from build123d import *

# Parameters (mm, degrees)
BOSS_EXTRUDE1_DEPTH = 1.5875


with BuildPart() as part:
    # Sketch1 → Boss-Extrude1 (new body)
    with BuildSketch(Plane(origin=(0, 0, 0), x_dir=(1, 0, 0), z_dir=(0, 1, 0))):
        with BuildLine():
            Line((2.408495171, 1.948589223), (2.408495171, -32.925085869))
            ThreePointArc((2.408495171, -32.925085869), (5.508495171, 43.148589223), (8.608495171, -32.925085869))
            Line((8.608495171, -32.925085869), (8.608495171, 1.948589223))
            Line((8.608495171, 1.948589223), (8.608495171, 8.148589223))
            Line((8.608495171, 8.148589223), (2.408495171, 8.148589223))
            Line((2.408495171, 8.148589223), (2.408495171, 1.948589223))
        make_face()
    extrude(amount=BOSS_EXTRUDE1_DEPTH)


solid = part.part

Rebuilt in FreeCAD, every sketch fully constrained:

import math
import FreeCAD as App
import Part
import Sketcher
Q = App.Units.Quantity

doc = App.newDocument("Part")
body = doc.addObject("PartDesign::Body", "Body")

sketch1 = body.newObject("Sketcher::SketchObject", "Sketch")
sketch1.AttachmentSupport = (doc.getObject("XZ_Plane"), [""])
sketch1.MapMode = "FlatFace"
sketch1.addGeometry([
    Part.ArcOfCircle(Part.Circle(App.Vector(5.508495, -5.048589, 0), App.Vector(0, 0, 1), 38.1), math.radians(94.66702), math.radians(445.33298)),
    Part.LineSegment(App.Vector(2.408495, 32.925086, 0), App.Vector(2.408495, -8.148589, 0)),
    Part.LineSegment(App.Vector(2.408495, -8.148589, 0), App.Vector(8.608495, -8.148589, 0)),
    Part.LineSegment(App.Vector(8.608495, -8.148589, 0), App.Vector(8.608495, 32.925086, 0)),
], False)
sketch1.addConstraint([
    Sketcher.Constraint("Coincident", 0, 1, 1, 1),
    Sketcher.Constraint("Coincident", 1, 2, 2, 1),
    Sketcher.Constraint("Coincident", 2, 2, 3, 1),
    Sketcher.Constraint("Coincident", 3, 2, 0, 2),
    Sketcher.Constraint("Vertical", 1),
    Sketcher.Constraint("Horizontal", 2),
    Sketcher.Constraint("Vertical", 3),
    Sketcher.Constraint("Horizontal", 0, 1, 3, 2),
    Sketcher.Constraint("Radius", 0, Q("1.5 in")),
    Sketcher.Constraint("DistanceX", 2, 1, 2, 2, Q("6.2 mm")),
    Sketcher.Constraint("DistanceY", 1, 2, 0, 3, Q("3.1 mm")),
    Sketcher.Constraint("DistanceY", 0, 3, -1, 1, Q("5.048589 mm")),
    Sketcher.Constraint("DistanceX", -1, 1, 0, 3, Q("5.508495 mm")),
])
pad1 = body.newObject("PartDesign::Pad", "Pad")
pad1.Profile = sketch1
pad1.Length = Q("0.0625 in")
pad1.Reversed = True

doc.recompute()
